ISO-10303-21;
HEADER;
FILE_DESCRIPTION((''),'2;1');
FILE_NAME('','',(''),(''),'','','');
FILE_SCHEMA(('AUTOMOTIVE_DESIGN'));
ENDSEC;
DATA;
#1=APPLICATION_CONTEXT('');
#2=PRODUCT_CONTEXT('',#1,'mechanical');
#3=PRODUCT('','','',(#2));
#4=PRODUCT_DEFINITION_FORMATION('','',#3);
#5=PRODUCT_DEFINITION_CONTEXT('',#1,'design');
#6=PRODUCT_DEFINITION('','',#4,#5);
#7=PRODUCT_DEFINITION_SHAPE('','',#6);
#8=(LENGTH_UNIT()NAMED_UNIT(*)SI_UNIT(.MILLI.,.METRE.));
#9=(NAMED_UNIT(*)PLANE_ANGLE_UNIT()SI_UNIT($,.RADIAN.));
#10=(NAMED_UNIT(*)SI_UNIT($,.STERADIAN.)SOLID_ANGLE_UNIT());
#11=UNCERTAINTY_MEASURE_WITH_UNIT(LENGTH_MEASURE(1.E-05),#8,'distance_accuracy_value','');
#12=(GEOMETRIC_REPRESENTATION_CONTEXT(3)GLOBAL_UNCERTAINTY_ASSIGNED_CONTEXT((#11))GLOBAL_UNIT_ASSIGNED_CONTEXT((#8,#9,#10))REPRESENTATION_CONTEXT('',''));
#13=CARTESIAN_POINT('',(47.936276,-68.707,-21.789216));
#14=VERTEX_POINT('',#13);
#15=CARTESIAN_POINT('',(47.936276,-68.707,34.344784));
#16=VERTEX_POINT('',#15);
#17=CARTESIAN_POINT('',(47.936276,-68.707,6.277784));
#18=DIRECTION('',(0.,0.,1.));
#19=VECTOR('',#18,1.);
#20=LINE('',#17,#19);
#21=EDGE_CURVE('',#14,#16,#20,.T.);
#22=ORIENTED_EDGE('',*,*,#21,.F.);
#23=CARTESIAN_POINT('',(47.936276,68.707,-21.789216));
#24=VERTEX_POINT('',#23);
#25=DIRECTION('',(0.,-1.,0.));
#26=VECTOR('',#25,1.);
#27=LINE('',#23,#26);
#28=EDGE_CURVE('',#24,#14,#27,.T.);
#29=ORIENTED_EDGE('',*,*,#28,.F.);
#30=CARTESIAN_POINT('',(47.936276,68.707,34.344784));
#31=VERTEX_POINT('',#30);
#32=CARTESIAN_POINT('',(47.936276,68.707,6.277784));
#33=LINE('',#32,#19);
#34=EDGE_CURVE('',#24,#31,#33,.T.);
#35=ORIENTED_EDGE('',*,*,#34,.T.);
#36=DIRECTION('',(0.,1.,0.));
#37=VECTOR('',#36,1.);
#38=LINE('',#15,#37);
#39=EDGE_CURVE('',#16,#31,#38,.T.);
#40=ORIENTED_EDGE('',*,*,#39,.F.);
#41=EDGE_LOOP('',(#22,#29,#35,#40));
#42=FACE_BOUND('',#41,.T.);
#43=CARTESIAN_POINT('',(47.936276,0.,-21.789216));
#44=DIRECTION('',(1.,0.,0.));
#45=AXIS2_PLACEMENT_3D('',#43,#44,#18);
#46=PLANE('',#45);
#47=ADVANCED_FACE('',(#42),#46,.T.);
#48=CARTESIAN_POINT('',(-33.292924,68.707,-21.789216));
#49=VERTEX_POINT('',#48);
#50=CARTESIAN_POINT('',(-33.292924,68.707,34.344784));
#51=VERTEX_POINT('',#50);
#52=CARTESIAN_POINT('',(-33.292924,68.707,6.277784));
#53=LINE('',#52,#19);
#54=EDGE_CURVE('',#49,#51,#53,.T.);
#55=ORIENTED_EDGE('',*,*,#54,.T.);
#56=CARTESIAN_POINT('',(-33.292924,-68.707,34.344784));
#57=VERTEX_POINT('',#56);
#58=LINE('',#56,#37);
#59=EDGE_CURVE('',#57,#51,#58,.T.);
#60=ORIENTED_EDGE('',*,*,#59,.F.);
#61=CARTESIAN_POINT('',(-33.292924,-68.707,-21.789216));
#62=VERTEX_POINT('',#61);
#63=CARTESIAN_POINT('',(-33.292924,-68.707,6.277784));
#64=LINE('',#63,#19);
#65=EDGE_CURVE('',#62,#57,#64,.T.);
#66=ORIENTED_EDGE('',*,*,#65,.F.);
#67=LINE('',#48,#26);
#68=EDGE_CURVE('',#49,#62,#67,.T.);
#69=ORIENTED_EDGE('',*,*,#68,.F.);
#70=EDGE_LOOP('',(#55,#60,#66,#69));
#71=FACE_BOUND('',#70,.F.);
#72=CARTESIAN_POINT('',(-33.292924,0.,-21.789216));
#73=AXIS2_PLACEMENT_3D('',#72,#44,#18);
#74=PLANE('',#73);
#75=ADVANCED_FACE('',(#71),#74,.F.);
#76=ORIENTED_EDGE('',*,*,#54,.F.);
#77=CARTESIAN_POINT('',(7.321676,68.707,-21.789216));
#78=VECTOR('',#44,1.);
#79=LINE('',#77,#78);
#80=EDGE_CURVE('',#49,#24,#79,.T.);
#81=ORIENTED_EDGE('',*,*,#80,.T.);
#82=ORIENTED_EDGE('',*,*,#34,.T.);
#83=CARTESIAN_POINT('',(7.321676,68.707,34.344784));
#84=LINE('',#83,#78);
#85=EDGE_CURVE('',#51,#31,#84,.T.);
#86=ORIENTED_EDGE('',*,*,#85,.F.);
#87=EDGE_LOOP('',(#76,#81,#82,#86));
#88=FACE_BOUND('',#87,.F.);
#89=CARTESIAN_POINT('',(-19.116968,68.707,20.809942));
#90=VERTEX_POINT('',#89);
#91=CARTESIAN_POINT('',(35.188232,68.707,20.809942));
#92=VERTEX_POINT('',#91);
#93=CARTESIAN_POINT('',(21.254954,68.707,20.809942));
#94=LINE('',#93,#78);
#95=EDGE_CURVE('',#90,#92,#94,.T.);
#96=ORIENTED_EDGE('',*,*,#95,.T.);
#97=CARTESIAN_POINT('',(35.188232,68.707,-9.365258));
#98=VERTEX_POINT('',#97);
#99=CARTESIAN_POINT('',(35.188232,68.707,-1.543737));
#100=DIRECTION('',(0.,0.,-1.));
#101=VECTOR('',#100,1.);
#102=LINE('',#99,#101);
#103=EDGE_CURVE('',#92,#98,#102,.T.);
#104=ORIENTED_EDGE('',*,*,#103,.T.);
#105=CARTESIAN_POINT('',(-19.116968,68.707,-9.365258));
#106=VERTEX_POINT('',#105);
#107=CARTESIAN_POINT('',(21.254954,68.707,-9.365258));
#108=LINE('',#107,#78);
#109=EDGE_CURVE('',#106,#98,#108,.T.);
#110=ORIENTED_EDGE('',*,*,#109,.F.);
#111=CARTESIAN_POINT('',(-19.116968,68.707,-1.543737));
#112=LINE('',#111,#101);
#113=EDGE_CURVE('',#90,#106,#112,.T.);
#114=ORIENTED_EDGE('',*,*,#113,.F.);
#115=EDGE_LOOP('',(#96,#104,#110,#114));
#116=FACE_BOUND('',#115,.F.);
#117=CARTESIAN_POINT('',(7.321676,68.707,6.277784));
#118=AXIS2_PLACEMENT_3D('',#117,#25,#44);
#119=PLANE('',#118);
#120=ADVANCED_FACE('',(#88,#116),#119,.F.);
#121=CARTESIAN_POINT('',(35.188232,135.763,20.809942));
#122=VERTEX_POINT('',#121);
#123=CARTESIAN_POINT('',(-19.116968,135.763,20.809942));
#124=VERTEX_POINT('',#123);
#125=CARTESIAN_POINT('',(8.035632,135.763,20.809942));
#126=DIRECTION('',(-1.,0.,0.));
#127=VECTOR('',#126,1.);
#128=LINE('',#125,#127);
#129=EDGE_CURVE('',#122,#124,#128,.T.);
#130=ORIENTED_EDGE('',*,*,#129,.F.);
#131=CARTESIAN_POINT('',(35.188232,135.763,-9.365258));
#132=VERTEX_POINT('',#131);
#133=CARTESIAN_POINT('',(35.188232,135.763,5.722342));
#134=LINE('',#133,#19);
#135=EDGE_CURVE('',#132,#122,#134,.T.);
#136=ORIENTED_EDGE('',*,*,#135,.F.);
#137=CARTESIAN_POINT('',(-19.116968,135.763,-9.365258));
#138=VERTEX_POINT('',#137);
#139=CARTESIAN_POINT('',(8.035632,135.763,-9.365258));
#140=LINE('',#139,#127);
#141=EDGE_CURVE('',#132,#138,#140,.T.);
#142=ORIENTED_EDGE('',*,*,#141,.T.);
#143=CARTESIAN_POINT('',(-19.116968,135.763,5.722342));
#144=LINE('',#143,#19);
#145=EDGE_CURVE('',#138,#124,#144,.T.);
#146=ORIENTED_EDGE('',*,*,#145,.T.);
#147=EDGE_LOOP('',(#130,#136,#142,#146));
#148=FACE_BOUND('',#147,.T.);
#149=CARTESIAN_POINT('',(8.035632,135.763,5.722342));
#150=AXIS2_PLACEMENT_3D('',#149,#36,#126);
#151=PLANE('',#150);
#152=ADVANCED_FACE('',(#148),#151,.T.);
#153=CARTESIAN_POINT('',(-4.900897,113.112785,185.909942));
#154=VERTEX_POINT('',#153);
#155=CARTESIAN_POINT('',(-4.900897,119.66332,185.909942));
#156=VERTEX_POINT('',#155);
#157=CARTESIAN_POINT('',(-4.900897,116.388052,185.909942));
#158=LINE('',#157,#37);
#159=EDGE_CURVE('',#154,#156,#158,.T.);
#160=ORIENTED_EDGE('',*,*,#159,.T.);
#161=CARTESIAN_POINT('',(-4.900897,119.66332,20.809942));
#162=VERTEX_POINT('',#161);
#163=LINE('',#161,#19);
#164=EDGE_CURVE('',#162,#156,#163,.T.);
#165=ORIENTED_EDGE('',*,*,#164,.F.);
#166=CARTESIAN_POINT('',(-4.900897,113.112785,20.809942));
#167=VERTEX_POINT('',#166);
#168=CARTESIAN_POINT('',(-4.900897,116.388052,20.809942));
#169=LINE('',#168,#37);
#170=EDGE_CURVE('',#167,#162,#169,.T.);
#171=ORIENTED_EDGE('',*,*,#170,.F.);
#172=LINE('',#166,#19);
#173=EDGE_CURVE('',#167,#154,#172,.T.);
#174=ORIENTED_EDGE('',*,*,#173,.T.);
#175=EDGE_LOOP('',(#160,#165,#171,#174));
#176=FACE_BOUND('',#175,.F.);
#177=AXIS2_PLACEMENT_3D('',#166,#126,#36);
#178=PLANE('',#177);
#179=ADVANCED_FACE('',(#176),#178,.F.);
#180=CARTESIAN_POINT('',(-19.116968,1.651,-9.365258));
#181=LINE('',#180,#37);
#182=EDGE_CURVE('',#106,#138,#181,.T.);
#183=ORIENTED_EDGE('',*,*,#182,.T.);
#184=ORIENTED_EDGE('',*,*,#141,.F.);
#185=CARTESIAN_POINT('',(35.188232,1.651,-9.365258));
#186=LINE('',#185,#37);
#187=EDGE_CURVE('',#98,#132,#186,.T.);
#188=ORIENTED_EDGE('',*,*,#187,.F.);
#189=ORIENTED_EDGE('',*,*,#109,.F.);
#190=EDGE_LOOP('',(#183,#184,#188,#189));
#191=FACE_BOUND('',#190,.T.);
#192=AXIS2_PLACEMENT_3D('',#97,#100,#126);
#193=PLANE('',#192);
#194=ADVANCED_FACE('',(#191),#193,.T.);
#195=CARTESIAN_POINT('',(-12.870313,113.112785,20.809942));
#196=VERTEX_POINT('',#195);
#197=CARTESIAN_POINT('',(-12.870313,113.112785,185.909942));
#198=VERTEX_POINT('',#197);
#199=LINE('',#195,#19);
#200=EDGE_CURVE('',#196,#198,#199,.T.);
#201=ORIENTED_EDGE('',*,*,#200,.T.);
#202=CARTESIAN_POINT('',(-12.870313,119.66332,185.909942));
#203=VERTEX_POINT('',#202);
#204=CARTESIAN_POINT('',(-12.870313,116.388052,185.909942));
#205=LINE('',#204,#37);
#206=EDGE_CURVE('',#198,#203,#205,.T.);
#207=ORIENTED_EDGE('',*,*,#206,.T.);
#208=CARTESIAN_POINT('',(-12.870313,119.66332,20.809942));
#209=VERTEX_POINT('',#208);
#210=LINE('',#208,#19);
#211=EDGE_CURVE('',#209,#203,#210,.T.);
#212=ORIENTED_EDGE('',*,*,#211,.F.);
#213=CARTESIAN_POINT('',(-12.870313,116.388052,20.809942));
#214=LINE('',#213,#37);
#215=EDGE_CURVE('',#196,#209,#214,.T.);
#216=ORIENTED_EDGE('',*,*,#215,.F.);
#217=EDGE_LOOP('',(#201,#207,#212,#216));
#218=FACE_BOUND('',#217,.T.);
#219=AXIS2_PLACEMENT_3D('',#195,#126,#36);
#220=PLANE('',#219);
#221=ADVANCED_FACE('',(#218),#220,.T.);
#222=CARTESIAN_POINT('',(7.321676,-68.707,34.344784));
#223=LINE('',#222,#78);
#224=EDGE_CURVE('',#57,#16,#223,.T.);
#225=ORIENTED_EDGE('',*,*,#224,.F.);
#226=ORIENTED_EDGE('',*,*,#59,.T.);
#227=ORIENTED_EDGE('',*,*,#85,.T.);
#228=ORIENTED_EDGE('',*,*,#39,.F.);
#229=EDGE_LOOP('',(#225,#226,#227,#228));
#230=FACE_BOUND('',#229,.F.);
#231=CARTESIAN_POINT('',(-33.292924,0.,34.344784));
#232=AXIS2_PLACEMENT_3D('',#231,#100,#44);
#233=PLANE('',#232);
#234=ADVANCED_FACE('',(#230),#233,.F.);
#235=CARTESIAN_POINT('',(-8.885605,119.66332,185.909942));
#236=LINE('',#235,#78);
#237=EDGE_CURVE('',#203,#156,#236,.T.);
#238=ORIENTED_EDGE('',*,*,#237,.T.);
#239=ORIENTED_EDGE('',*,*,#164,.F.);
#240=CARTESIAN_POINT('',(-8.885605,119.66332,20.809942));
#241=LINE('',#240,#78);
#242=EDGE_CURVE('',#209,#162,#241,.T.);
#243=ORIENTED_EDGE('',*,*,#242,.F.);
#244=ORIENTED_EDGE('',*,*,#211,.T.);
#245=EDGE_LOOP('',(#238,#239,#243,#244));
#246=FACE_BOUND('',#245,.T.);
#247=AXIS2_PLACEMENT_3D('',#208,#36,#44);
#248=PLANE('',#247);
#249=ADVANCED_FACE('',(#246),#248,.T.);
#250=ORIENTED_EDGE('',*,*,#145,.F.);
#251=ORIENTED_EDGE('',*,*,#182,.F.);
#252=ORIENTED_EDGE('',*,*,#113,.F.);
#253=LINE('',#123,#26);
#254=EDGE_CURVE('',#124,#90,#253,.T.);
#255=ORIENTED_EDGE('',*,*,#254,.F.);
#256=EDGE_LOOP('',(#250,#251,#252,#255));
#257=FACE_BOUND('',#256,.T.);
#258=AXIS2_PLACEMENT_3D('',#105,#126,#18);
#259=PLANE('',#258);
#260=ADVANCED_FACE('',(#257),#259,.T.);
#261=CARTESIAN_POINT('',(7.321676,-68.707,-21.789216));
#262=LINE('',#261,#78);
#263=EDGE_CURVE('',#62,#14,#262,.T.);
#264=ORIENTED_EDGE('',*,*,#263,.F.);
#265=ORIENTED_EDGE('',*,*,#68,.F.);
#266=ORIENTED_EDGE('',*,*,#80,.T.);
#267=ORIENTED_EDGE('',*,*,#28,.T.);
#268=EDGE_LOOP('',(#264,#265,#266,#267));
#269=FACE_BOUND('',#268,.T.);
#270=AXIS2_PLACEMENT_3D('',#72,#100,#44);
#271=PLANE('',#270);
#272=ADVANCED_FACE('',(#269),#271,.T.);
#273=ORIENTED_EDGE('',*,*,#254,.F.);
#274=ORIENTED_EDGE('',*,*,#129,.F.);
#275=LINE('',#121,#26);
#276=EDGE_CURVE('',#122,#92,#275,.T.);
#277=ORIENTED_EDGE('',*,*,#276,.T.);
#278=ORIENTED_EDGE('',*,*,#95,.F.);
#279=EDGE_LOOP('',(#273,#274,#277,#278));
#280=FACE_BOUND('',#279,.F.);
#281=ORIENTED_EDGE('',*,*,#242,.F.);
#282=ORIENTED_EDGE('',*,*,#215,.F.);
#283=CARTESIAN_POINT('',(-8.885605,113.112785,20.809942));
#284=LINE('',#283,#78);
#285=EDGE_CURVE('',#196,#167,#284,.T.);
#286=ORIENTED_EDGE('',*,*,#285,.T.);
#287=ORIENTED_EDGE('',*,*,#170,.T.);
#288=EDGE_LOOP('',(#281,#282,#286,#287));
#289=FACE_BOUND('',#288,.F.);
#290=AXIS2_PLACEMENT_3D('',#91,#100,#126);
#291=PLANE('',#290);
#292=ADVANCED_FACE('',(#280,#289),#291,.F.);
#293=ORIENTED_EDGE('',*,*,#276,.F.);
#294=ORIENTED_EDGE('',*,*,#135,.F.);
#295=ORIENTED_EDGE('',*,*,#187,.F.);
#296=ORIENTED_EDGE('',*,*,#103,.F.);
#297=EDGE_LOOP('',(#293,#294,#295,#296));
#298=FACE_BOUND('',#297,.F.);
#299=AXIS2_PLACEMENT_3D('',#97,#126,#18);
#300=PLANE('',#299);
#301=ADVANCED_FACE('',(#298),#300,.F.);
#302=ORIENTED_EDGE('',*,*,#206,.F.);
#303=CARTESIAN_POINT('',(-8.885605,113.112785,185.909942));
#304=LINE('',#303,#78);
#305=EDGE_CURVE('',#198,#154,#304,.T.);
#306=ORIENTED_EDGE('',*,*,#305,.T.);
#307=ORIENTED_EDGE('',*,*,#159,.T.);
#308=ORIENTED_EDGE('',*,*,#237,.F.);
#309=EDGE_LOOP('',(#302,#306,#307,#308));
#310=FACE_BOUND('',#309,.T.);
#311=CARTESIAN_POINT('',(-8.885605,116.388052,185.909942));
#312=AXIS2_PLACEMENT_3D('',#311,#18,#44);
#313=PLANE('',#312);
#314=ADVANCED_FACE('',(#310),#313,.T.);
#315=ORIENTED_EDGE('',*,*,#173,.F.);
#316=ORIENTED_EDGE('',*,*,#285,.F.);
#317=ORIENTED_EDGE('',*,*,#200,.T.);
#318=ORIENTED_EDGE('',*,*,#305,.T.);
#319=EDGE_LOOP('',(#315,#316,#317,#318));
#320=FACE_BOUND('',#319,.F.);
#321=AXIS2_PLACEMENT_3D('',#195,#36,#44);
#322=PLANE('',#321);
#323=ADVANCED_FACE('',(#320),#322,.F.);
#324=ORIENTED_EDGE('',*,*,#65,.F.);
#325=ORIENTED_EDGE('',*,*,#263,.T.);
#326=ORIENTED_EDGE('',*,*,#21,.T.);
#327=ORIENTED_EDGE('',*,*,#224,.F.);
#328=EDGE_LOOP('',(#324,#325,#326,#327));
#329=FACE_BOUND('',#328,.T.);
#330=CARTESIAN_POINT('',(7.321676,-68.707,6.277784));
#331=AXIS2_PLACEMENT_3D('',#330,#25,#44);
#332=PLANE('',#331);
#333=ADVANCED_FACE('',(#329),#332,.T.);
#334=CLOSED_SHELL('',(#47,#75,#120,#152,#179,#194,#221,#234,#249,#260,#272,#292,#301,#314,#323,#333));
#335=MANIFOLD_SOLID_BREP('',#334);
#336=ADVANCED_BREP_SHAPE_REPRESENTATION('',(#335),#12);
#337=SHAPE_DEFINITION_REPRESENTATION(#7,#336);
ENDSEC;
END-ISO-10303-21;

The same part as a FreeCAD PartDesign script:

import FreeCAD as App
import Part
import Sketcher

V = App.Vector
Q = App.Units.Quantity


def add_polygon(sketch, points):
    """Adds a closed chain of lines whose ends are joined by coincident constraints."""
    first, n = sketch.GeometryCount, len(points)
    for a, b in zip(points, points[1:] + points[:1]):
        sketch.addGeometry(Part.LineSegment(App.Vector(*a, 0), App.Vector(*b, 0)), False)
    for i in range(n):
        sketch.addConstraint(Sketcher.Constraint("Coincident", first + i, 2, first + (i + 1) % n, 1))

doc = App.newDocument("Part")
body = doc.addObject("PartDesign::Body", "Body")

# Sketch on XZ plane
sketch1 = doc.addObject("Sketcher::SketchObject", "Sketch")
body.addObject(sketch1)
sketch1.AttachmentSupport = (doc.XZ_Plane, [""])
sketch1.MapMode = "FlatFace"
add_polygon(sketch1, [(-33.292924, 34.344784), (-33.292924, -21.789216), (47.936276, -21.789216), (47.936276, 34.344784)])  # lines 0-3
sketch1.addConstraint([
    Sketcher.Constraint("Vertical", 0),
    Sketcher.Constraint("Horizontal", 1),
    Sketcher.Constraint("Vertical", 2),
    Sketcher.Constraint("Horizontal", 3),
    Sketcher.Constraint("DistanceY", 0, 2, 0, 1, Q("2.21 in")),
    Sketcher.Constraint("DistanceX", 1, 1, 1, 2, Q("3.198 in")),
    Sketcher.Constraint("DistanceX", 0, 2, -1, 1, 33.292924),
    Sketcher.Constraint("DistanceY", 0, 2, -1, 1, 21.789216),
])
pad1 = doc.addObject("PartDesign::Pad", "Pad")
body.addObject(pad1)
pad1.Profile = sketch1
pad1.Length = Q("5.41 in")
pad1.Midplane = True

# Sketch on XZ plane
sketch2 = doc.addObject("Sketcher::SketchObject", "Sketch001")
body.addObject(sketch2)
sketch2.AttachmentSupport = (doc.XZ_Plane, [""])
sketch2.MapMode = "FlatFace"
sketch2.AttachmentOffset = App.Placement(V(0, 0, -2.705 * 25.4), App.Rotation())
add_polygon(sketch2, [(35.188232, 20.809942), (35.188232, -9.365258), (-19.116968, -9.365258), (-19.116968, 20.809942)])  # lines 0-3
sketch2.addConstraint([
    Sketcher.Constraint("Vertical", 0),
    Sketcher.Constraint("Horizontal", 1),
    Sketcher.Constraint("Vertical", 2),
    Sketcher.Constraint("Horizontal", 3),
    Sketcher.Constraint("DistanceX", 1, 2, 1, 1, Q("2.138 in")),
    Sketcher.Constraint("DistanceY", 0, 2, 0, 1, Q("1.188 in")),
    Sketcher.Constraint("DistanceY", 0, 2, -1, 1, 9.365258),
    Sketcher.Constraint("DistanceX", 1, 2, -1, 1, 19.116968),
])
pad2 = doc.addObject("PartDesign::Pad", "Pad001")
body.addObject(pad2)
pad2.Profile = sketch2
pad2.Length = Q("5.28 in")
pad2.Midplane = True

# Sketch on XY plane
sketch3 = doc.addObject("Sketcher::SketchObject", "Sketch002")
body.addObject(sketch3)
sketch3.AttachmentSupport = (doc.XY_Plane, [""])
sketch3.MapMode = "FlatFace"
sketch3.AttachmentOffset = App.Placement(V(0, 0, 20.809942), App.Rotation())
add_polygon(sketch3, [(-12.870313, 119.66332), (-12.870313, 113.112785), (-4.900897, 113.112785), (-4.900897, 119.66332)])  # lines 0-3
sketch3.addConstraint([
    Sketcher.Constraint("Vertical", 0),
    Sketcher.Constraint("Horizontal", 1),
    Sketcher.Constraint("Vertical", 2),
    Sketcher.Constraint("Horizontal", 3),
    Sketcher.Constraint("DistanceX", 1, 1, 1, 2, 7.969416),
    Sketcher.Constraint("DistanceY", 0, 2, 0, 1, 6.550535),
    Sketcher.Constraint("DistanceY", -1, 1, 2, 2, 119.66332),
    Sketcher.Constraint("DistanceX", 0, 2, -1, 1, 12.870313),
])
pad3 = doc.addObject("PartDesign::Pad", "Pad002")
body.addObject(pad3)
pad3.Profile = sketch3
pad3.Length = Q("6.5 in")

doc.recompute()
